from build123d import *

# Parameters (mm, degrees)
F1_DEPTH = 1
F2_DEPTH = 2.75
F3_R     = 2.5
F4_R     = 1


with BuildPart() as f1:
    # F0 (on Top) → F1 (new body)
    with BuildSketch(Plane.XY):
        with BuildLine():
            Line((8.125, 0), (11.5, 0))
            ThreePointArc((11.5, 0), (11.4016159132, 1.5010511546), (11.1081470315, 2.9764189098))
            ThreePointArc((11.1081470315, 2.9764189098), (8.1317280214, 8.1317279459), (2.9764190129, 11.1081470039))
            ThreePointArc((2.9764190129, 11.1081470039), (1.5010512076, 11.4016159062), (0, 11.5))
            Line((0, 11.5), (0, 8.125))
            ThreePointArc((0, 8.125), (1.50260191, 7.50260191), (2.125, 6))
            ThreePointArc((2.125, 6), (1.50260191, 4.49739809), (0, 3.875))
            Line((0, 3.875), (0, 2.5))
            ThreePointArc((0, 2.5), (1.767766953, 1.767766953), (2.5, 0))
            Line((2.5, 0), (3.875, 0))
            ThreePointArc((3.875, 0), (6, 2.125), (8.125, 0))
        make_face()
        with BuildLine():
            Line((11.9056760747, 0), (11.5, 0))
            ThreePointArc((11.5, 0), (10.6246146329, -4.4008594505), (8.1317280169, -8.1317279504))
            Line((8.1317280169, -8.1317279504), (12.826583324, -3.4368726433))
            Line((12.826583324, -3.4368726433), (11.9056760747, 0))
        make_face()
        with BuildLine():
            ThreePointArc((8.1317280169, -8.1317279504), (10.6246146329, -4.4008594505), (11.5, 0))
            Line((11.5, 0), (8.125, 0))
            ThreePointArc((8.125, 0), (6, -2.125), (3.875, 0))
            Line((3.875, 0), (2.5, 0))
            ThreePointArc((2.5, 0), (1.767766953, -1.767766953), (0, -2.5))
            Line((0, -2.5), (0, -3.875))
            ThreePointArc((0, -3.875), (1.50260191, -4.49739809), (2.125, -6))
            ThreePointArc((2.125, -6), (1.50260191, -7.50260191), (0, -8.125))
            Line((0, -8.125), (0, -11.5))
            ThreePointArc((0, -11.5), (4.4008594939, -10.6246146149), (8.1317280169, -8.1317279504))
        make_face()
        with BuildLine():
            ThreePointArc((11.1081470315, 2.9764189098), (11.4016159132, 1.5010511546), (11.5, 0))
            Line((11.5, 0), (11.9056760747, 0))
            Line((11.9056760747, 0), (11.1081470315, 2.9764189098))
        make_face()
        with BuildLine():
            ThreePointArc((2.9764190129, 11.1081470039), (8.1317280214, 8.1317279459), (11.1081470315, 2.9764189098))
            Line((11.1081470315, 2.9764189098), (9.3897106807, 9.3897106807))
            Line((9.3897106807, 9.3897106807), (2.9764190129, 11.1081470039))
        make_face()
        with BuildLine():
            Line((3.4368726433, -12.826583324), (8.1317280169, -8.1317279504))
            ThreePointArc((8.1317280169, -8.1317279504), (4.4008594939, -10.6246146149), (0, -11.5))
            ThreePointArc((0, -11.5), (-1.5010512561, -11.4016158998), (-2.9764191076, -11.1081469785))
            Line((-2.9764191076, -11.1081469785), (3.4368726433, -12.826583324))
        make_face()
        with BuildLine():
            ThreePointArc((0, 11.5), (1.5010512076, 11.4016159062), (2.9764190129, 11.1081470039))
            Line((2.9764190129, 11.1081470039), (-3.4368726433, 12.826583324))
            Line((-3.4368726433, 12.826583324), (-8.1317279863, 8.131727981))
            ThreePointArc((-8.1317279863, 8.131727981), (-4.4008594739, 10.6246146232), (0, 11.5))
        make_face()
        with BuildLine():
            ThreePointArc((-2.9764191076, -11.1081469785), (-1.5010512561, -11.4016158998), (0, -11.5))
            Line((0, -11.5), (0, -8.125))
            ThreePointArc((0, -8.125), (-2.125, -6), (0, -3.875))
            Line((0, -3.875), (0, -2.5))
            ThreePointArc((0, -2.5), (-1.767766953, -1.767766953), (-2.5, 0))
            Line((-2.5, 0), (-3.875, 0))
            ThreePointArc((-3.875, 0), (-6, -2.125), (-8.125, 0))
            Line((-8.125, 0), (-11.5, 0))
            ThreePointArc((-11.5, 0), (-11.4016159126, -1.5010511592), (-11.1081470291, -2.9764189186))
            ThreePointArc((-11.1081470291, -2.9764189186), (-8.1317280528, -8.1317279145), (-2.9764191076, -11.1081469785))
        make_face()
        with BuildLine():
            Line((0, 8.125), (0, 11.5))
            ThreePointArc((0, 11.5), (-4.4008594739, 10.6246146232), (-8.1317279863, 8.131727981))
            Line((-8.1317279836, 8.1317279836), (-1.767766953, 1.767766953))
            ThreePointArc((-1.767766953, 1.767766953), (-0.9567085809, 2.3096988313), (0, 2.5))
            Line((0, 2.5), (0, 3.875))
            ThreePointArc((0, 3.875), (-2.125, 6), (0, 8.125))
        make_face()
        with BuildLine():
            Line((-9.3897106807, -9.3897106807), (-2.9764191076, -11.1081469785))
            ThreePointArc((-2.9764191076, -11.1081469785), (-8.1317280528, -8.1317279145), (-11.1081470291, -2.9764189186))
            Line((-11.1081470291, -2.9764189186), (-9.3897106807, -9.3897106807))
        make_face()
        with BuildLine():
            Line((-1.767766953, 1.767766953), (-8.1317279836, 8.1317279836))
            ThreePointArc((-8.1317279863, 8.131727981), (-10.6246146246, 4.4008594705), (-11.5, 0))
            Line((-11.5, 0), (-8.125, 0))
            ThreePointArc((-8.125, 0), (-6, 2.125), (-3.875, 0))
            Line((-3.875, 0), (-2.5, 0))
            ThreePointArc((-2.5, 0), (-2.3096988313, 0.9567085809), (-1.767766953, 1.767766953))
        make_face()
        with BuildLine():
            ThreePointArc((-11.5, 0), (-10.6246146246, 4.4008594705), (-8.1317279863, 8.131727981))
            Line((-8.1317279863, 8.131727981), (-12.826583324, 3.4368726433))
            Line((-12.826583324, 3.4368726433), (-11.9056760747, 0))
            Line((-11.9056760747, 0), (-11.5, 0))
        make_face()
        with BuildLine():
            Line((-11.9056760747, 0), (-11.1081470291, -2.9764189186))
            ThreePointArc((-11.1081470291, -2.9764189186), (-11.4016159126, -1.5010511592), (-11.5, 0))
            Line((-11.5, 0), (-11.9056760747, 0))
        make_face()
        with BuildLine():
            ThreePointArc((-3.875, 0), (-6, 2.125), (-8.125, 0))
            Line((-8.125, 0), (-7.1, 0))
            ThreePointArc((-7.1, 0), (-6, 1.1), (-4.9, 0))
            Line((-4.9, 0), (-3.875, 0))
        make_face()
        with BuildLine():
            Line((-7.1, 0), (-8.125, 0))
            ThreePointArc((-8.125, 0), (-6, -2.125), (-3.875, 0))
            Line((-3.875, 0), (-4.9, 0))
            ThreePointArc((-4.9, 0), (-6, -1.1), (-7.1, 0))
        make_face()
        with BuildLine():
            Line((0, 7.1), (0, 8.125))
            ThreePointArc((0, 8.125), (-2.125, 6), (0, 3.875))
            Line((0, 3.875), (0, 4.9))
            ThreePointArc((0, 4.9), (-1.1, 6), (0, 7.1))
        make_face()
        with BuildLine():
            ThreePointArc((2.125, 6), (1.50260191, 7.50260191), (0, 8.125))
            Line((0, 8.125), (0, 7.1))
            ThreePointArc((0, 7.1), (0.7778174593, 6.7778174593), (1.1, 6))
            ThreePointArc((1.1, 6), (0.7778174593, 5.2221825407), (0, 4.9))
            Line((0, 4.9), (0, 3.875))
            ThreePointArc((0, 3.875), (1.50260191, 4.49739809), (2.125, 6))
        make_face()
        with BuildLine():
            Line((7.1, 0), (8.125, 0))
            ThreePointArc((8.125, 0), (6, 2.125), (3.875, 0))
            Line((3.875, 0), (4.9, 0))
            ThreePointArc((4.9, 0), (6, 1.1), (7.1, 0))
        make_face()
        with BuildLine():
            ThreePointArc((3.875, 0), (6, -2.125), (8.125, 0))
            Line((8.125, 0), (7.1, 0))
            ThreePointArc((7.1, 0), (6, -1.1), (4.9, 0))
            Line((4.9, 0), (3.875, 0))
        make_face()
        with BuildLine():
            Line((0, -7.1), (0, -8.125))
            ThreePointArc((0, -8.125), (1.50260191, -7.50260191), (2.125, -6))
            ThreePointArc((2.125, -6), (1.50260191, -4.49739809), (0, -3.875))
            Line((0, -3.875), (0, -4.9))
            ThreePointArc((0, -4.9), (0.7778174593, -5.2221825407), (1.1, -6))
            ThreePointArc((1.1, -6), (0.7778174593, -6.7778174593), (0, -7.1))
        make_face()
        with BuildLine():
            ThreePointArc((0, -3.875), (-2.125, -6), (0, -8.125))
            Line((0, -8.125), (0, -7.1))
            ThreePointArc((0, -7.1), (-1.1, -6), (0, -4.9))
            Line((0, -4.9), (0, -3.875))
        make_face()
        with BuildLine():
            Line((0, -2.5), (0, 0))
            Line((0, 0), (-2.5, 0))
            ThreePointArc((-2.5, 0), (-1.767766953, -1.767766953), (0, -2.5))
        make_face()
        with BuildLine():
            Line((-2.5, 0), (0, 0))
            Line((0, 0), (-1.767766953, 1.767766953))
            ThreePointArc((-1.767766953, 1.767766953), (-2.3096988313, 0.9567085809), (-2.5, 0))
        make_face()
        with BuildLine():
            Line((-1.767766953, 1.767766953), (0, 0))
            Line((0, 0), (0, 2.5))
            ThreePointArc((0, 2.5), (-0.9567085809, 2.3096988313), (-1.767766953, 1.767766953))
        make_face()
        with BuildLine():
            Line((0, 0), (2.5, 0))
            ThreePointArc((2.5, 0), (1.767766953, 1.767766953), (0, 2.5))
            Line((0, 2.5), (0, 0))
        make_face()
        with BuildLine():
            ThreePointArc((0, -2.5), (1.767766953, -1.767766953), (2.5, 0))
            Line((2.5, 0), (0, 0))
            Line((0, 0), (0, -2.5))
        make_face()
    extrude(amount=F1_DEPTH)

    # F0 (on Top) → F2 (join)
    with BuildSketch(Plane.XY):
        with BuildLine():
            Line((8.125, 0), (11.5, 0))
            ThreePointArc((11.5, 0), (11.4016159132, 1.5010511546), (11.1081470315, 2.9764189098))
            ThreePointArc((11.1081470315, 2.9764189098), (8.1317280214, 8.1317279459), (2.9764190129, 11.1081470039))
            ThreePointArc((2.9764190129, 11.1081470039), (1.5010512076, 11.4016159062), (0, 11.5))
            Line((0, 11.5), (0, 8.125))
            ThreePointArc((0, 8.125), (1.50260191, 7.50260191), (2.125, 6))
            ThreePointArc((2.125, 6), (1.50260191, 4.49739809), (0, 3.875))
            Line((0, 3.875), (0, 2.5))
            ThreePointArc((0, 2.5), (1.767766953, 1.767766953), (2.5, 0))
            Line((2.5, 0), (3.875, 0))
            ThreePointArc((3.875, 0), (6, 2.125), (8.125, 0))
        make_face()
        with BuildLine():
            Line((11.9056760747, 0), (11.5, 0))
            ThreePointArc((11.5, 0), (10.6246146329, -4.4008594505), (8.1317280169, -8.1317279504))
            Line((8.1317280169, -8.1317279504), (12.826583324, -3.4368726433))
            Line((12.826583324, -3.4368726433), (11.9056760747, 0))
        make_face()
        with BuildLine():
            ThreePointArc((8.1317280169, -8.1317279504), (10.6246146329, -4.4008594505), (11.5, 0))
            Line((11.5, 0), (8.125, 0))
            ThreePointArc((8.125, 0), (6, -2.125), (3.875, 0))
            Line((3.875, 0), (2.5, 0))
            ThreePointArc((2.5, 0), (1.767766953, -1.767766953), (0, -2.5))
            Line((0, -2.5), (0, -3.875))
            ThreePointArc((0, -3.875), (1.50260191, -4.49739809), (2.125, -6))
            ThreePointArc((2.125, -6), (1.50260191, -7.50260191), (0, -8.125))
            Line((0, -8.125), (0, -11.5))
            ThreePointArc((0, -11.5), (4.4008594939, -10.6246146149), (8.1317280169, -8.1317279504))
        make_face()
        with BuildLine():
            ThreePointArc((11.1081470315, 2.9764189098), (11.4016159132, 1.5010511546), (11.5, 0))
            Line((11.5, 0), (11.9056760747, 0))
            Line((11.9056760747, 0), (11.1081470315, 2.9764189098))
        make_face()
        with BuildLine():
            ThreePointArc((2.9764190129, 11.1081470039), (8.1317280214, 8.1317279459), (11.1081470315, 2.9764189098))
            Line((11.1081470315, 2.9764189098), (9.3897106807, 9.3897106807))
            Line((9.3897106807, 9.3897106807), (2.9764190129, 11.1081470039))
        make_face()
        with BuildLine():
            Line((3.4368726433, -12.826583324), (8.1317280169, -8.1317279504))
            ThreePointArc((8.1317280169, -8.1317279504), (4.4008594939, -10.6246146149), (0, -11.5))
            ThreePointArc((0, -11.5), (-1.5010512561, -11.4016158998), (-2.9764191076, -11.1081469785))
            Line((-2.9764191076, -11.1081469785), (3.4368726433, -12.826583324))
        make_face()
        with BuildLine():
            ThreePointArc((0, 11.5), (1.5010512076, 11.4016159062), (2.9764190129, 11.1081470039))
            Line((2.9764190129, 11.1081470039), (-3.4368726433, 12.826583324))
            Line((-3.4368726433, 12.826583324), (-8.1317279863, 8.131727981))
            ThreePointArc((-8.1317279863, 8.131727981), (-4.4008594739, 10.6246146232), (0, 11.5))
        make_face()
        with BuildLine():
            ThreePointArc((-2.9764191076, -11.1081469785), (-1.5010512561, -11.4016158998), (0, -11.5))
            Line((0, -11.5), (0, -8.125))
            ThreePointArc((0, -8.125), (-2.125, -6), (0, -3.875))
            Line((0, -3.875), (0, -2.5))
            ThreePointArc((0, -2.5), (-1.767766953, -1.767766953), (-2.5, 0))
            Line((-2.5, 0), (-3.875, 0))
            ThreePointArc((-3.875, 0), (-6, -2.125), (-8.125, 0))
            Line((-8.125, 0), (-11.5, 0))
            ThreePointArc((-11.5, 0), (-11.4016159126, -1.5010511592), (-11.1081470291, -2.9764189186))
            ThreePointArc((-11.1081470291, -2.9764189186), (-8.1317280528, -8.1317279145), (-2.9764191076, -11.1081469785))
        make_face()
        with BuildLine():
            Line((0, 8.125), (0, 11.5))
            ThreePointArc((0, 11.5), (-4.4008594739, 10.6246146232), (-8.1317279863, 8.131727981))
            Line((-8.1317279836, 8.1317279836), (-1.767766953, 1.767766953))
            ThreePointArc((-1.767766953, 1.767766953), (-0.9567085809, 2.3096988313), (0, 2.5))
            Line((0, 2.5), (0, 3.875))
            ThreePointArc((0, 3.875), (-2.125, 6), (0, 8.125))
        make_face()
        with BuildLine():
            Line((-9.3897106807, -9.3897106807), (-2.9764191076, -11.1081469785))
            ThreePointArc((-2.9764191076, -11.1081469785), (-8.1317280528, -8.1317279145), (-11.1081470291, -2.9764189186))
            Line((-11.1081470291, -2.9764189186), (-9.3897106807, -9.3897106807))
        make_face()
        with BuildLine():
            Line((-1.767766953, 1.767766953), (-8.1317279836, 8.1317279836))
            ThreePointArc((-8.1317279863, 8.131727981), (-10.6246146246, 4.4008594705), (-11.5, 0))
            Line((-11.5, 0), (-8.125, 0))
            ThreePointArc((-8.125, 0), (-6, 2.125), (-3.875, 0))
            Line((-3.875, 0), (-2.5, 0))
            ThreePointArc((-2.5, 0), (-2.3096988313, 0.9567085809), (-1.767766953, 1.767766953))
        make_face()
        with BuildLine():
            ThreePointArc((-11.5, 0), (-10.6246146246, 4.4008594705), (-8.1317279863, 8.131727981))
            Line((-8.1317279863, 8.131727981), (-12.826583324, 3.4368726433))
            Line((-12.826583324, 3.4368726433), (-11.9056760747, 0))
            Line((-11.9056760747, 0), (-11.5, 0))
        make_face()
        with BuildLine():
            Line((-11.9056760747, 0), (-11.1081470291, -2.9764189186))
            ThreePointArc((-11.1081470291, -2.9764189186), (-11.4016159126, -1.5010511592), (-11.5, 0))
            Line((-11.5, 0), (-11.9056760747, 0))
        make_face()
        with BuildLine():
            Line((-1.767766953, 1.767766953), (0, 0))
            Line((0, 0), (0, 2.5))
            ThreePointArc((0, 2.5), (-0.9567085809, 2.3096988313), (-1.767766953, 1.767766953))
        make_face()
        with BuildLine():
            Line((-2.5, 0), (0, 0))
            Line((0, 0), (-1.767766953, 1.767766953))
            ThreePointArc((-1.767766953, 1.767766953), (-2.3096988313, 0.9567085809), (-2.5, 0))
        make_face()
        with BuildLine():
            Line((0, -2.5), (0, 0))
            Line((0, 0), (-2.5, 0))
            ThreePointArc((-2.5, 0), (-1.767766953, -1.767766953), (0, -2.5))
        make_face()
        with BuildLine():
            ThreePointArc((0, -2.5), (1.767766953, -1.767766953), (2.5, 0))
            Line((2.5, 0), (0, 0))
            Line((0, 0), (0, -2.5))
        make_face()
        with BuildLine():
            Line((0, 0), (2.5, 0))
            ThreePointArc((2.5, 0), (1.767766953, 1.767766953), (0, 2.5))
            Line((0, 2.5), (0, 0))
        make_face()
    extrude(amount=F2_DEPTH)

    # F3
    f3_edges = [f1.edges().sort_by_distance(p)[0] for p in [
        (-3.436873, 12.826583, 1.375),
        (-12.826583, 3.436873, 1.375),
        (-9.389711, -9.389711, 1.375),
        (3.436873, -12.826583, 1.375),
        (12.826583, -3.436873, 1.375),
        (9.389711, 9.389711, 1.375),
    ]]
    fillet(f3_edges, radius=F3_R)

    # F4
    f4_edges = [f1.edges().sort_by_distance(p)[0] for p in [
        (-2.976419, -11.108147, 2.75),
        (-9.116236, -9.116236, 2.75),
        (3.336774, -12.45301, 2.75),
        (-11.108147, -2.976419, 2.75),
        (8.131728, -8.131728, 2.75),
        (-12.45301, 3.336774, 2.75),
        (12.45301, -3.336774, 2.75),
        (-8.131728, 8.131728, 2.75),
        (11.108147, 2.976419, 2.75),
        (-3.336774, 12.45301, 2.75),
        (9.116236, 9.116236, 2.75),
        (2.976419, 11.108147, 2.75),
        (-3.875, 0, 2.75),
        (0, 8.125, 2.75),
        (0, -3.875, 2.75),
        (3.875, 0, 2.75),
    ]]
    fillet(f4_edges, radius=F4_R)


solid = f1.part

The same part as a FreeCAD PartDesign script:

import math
import FreeCAD as App
import Part
import Sketcher
from FreeCAD import Vector
Q = App.Units.Quantity


def edges_at(feature, points):
    """Names of the edges that pass closest to the given points."""
    edges = feature.Shape.Edges
    near = lambda p: min(range(len(edges)), key=lambda i: edges[i].distToShape(Part.Vertex(*p))[0])
    return sorted({f"Edge{near(p) + 1}" for p in points})

doc = App.newDocument("Part")
body = doc.addObject("PartDesign::Body", "Body")

# Sketch on XY plane
sketch1 = doc.addObject("Sketcher::SketchObject", "Sketch")
body.addObject(sketch1)
sketch1.AttachmentSupport = (doc.XY_Plane, [""])
sketch1.MapMode = "FlatFace"
sketch1.addGeometry(Part.LineSegment(Vector(-11.1, -3, 0), Vector(-9.4, -9.4, 0)), False)
sketch1.addGeometry(Part.LineSegment(Vector(-9.4, -9.4, 0), Vector(-3, -11.1, 0)), False)
sketch1.addGeometry(Part.LineSegment(Vector(-3, -11.1, 0), Vector(3.4, -12.8, 0)), False)
sketch1.addGeometry(Part.LineSegment(Vector(3.4, -12.8, 0), Vector(12.8, -3.4, 0)), False)
sketch1.addGeometry(Part.LineSegment(Vector(12.8, -3.4, 0), Vector(11.9, 0, 0)), False)
sketch1.addGeometry(Part.LineSegment(Vector(11.9, 0, 0), Vector(9.4, 9.4, 0)), False)
sketch1.addGeometry(Part.LineSegment(Vector(9.4, 9.4, 0), Vector(3, 11.1, 0)), False)
sketch1.addGeometry(Part.LineSegment(Vector(3, 11.1, 0), Vector(-3.4, 12.8, 0)), False)
sketch1.addGeometry(Part.LineSegment(Vector(-3.4, 12.8, 0), Vector(-12.8, 3.4, 0)), False)
sketch1.addGeometry(Part.LineSegment(Vector(-12.8, 3.4, 0), Vector(-11.9, 0, 0)), False)
sketch1.addGeometry(Part.LineSegment(Vector(-11.9, 0, 0), Vector(-11.1, -3, 0)), False)
sketch1.addGeometry(Part.ArcOfCircle(Part.Circle(Vector(0, 6, 0), Vector(0, 0, 1), 1.1), math.radians(90), math.radians(270)), False)
sketch1.addGeometry(Part.ArcOfCircle(Part.Circle(Vector(0, 6, 0), Vector(0, 0, 1), 1.1), math.radians(0), math.radians(90)), False)
sketch1.addGeometry(Part.ArcOfCircle(Part.Circle(Vector(0, 6, 0), Vector(0, 0, 1), 1.1), math.radians(-90), math.radians(0)), False)
sketch1.addGeometry(Part.Circle(Vector(-6, 0, 0), Vector(0, 0, 1), 1.1), False)
sketch1.addGeometry(Part.ArcOfCircle(Part.Circle(Vector(0, -6, 0), Vector(0, 0, 1), 1.1), math.radians(0), math.radians(90)), False)
sketch1.addGeometry(Part.ArcOfCircle(Part.Circle(Vector(0, -6, 0), Vector(0, 0, 1), 1.1), math.radians(-90), math.radians(0)), False)
sketch1.addGeometry(Part.ArcOfCircle(Part.Circle(Vector(0, -6, 0), Vector(0, 0, 1), 1.1), math.radians(90), math.radians(270)), False)
sketch1.addGeometry(Part.Circle(Vector(6, 0, 0), Vector(0, 0, 1), 1.1), False)
sketch1.addConstraint(Sketcher.Constraint("Coincident", 0, 2, 1, 1))
sketch1.addConstraint(Sketcher.Constraint("Coincident", 1, 2, 2, 1))
sketch1.addConstraint(Sketcher.Constraint("Coincident", 2, 2, 3, 1))
sketch1.addConstraint(Sketcher.Constraint("Coincident", 3, 2, 4, 1))
sketch1.addConstraint(Sketcher.Constraint("Coincident", 4, 2, 5, 1))
sketch1.addConstraint(Sketcher.Constraint("Coincident", 5, 2, 6, 1))
sketch1.addConstraint(Sketcher.Constraint("Coincident", 6, 2, 7, 1))
sketch1.addConstraint(Sketcher.Constraint("Coincident", 7, 2, 8, 1))
sketch1.addConstraint(Sketcher.Constraint("Coincident", 8, 2, 9, 1))
sketch1.addConstraint(Sketcher.Constraint("Coincident", 9, 2, 10, 1))
sketch1.addConstraint(Sketcher.Constraint("Coincident", 10, 2, 0, 1))
sketch1.addConstraint(Sketcher.Constraint("Tangent", 11, 1, 12, 2))
sketch1.addConstraint(Sketcher.Constraint("Tangent", 12, 1, 13, 2))
sketch1.addConstraint(Sketcher.Constraint("Tangent", 13, 1, 11, 2))
sketch1.addConstraint(Sketcher.Constraint("Tangent", 15, 1, 16, 2))
sketch1.addConstraint(Sketcher.Constraint("Tangent", 16, 1, 17, 2))
sketch1.addConstraint(Sketcher.Constraint("Tangent", 17, 1, 15, 2))
sketch1.addConstraint(Sketcher.Constraint("Equal", 13, 14))
sketch1.addConstraint(Sketcher.Constraint("Equal", 14, 15))
sketch1.addConstraint(Sketcher.Constraint("Equal", 17, 18))
sketch1.addConstraint(Sketcher.Constraint("Symmetric", 11, 3, 15, 3, -1, 1))
sketch1.addConstraint(Sketcher.Constraint("Symmetric", 14, 3, 18, 3, -1, 1))
sketch1.addConstraint(Sketcher.Constraint("Symmetric", 0, 2, 5, 2, -1, 1))
sketch1.addConstraint(Sketcher.Constraint("Symmetric", 1, 2, 6, 2, -1, 1))
sketch1.addConstraint(Sketcher.Constraint("Symmetric", 2, 2, 7, 2, -1, 1))
sketch1.addConstraint(Sketcher.Constraint("Symmetric", 3, 2, 8, 2, -1, 1))
sketch1.addConstraint(Sketcher.Constraint("Symmetric", 4, 2, 9, 2, -1, 1))
sketch1.addConstraint(Sketcher.Constraint("Symmetric", 12, 1, 15, 1, -1))
sketch1.addConstraint(Sketcher.Constraint("PointOnObject", 14, 3, -1))
sketch1.addConstraint(Sketcher.Constraint("PointOnObject", 4, 2, -1))
sketch1.addConstraint(Sketcher.Constraint("PointOnObject", 11, 1, -2))
sketch1.addConstraint(Sketcher.Constraint("PointOnObject", 13, 1, -2))
sketch1.addConstraint(Sketcher.Constraint("PointOnObject", 16, 1, -2))
sketch1.addConstraint(Sketcher.Constraint("PointOnObject", 17, 1, -2))
sketch1.addConstraint(Sketcher.Constraint("Parallel", 1, 2))
sketch1.addConstraint(Sketcher.Constraint("Parallel", 0, 4))
sketch1.addConstraint(Sketcher.Constraint("Parallel", 4, 5))
sketch1.addConstraint(Sketcher.Constraint("Horizontal", 13, 3, 12, 1))
sketch1.addConstraint(Sketcher.Constraint("Equal", 0, 1))
sketch1.addConstraint(Sketcher.Constraint("Equal", 1, 2))
sketch1.addConstraint(Sketcher.Constraint("Diameter", 14, Q("2.2 mm")))
sketch1.addConstraint(Sketcher.Constraint("Angle", 0, Q("-75 deg")))
sketch1.addConstraint(Sketcher.Constraint("Angle", 1, Q("-15 deg")))
sketch1.addConstraint(Sketcher.Constraint("Angle", 3, Q("45 deg")))
sketch1.addConstraint(Sketcher.Constraint("DistanceY", -1, 1, 11, 3, Q("6 mm")))
sketch1.addConstraint(Sketcher.Constraint("DistanceX", 14, 3, -1, 1, Q("6 mm")))
sketch1.addConstraint(Sketcher.Constraint("Distance", 0, Q("6.639528 mm")))
sketch1.addConstraint(Sketcher.Constraint("DistanceX", 0, 2, -1, 1, Q("9.389711 mm")))
sketch1.addConstraint(Sketcher.Constraint("DistanceY", 0, 2, -1, 1, Q("9.389711 mm")))
pad1 = doc.addObject("PartDesign::Pad", "Pad")
body.addObject(pad1)
pad1.Profile = sketch1
pad1.Length = 1

# Sketch on XY plane
sketch2 = doc.addObject("Sketcher::SketchObject", "Sketch001")
body.addObject(sketch2)
sketch2.AttachmentSupport = (doc.XY_Plane, [""])
sketch2.MapMode = "FlatFace"
sketch2.addGeometry(Part.LineSegment(Vector(-11.1, -3, 0), Vector(-9.4, -9.4, 0)), False)
sketch2.addGeometry(Part.LineSegment(Vector(-9.4, -9.4, 0), Vector(-3, -11.1, 0)), False)
sketch2.addGeometry(Part.LineSegment(Vector(-3, -11.1, 0), Vector(3.4, -12.8, 0)), False)
sketch2.addGeometry(Part.LineSegment(Vector(3.4, -12.8, 0), Vector(12.8, -3.4, 0)), False)
sketch2.addGeometry(Part.LineSegment(Vector(12.8, -3.4, 0), Vector(11.9, 0, 0)), False)
sketch2.addGeometry(Part.LineSegment(Vector(11.9, 0, 0), Vector(9.4, 9.4, 0)), False)
sketch2.addGeometry(Part.LineSegment(Vector(9.4, 9.4, 0), Vector(3, 11.1, 0)), False)
sketch2.addGeometry(Part.LineSegment(Vector(3, 11.1, 0), Vector(-3.4, 12.8, 0)), False)
sketch2.addGeometry(Part.LineSegment(Vector(-3.4, 12.8, 0), Vector(-12.8, 3.4, 0)), False)
sketch2.addGeometry(Part.LineSegment(Vector(-12.8, 3.4, 0), Vector(-11.9, 0, 0)), False)
sketch2.addGeometry(Part.LineSegment(Vector(-11.9, 0, 0), Vector(-11.1, -3, 0)), False)
sketch2.addGeometry(Part.ArcOfCircle(Part.Circle(Vector(0, 6, 0), Vector(0, 0, 1), 2.1), math.radians(0), math.radians(90)), False)
sketch2.addGeometry(Part.ArcOfCircle(Part.Circle(Vector(0, 6, 0), Vector(0, 0, 1), 2.1), math.radians(-90), math.radians(0)), False)
sketch2.addGeometry(Part.ArcOfCircle(Part.Circle(Vector(0, 6, 0), Vector(0, 0, 1), 2.1), math.radians(90), math.radians(270)), False)
sketch2.addGeometry(Part.Circle(Vector(-6, 0, 0), Vector(0, 0, 1), 2.1), False)
sketch2.addGeometry(Part.ArcOfCircle(Part.Circle(Vector(0, -6, 0), Vector(0, 0, 1), 2.1), math.radians(0), math.radians(90)), False)
sketch2.addGeometry(Part.ArcOfCircle(Part.Circle(Vector(0, -6, 0), Vector(0, 0, 1), 2.1), math.radians(-90), math.radians(0)), False)
sketch2.addGeometry(Part.ArcOfCircle(Part.Circle(Vector(0, -6, 0), Vector(0, 0, 1), 2.1), math.radians(90), math.radians(270)), False)
sketch2.addGeometry(Part.Circle(Vector(6, 0, 0), Vector(0, 0, 1), 2.1), False)
sketch2.addConstraint(Sketcher.Constraint("Coincident", 0, 2, 1, 1))
sketch2.addConstraint(Sketcher.Constraint("Coincident", 1, 2, 2, 1))
sketch2.addConstraint(Sketcher.Constraint("Coincident", 2, 2, 3, 1))
sketch2.addConstraint(Sketcher.Constraint("Coincident", 3, 2, 4, 1))
sketch2.addConstraint(Sketcher.Constraint("Coincident", 4, 2, 5, 1))
sketch2.addConstraint(Sketcher.Constraint("Coincident", 5, 2, 6, 1))
sketch2.addConstraint(Sketcher.Constraint("Coincident", 6, 2, 7, 1))
sketch2.addConstraint(Sketcher.Constraint("Coincident", 7, 2, 8, 1))
sketch2.addConstraint(Sketcher.Constraint("Coincident", 8, 2, 9, 1))
sketch2.addConstraint(Sketcher.Constraint("Coincident", 9, 2, 10, 1))
sketch2.addConstraint(Sketcher.Constraint("Coincident", 10, 2, 0, 1))
sketch2.addConstraint(Sketcher.Constraint("Tangent", 11, 1, 12, 2))
sketch2.addConstraint(Sketcher.Constraint("Tangent", 12, 1, 13, 2))
sketch2.addConstraint(Sketcher.Constraint("Tangent", 13, 1, 11, 2))
sketch2.addConstraint(Sketcher.Constraint("Tangent", 15, 1, 16, 2))
sketch2.addConstraint(Sketcher.Constraint("Tangent", 16, 1, 17, 2))
sketch2.addConstraint(Sketcher.Constraint("Tangent", 17, 1, 15, 2))
sketch2.addConstraint(Sketcher.Constraint("Equal", 13, 14))
sketch2.addConstraint(Sketcher.Constraint("Equal", 14, 15))
sketch2.addConstraint(Sketcher.Constraint("Equal", 17, 18))
sketch2.addConstraint(Sketcher.Constraint("Symmetric", 11, 3, 15, 3, -1, 1))
sketch2.addConstraint(Sketcher.Constraint("Symmetric", 14, 3, 18, 3, -1, 1))
sketch2.addConstraint(Sketcher.Constraint("Symmetric", 0, 2, 5, 2, -1, 1))
sketch2.addConstraint(Sketcher.Constraint("Symmetric", 1, 2, 6, 2, -1, 1))
sketch2.addConstraint(Sketcher.Constraint("Symmetric", 2, 2, 7, 2, -1, 1))
sketch2.addConstraint(Sketcher.Constraint("Symmetric", 3, 2, 8, 2, -1, 1))
sketch2.addConstraint(Sketcher.Constraint("Symmetric", 4, 2, 9, 2, -1, 1))
sketch2.addConstraint(Sketcher.Constraint("Symmetric", 11, 1, 15, 1, -1))
sketch2.addConstraint(Sketcher.Constraint("PointOnObject", 14, 3, -1))
sketch2.addConstraint(Sketcher.Constraint("PointOnObject", 4, 2, -1))
sketch2.addConstraint(Sketcher.Constraint("PointOnObject", 12, 1, -2))
sketch2.addConstraint(Sketcher.Constraint("PointOnObject", 13, 1, -2))
sketch2.addConstraint(Sketcher.Constraint("PointOnObject", 16, 1, -2))
sketch2.addConstraint(Sketcher.Constraint("PointOnObject", 17, 1, -2))
sketch2.addConstraint(Sketcher.Constraint("Parallel", 1, 2))
sketch2.addConstraint(Sketcher.Constraint("Parallel", 0, 4))
sketch2.addConstraint(Sketcher.Constraint("Parallel", 4, 5))
sketch2.addConstraint(Sketcher.Constraint("Horizontal", 13, 3, 11, 1))
sketch2.addConstraint(Sketcher.Constraint("Equal", 0, 1))
sketch2.addConstraint(Sketcher.Constraint("Equal", 1, 2))
sketch2.addConstraint(Sketcher.Constraint("Diameter", 14, Q("4.25 mm")))
sketch2.addConstraint(Sketcher.Constraint("Angle", 0, Q("-75 deg")))
sketch2.addConstraint(Sketcher.Constraint("Angle", 1, Q("-15 deg")))
sketch2.addConstraint(Sketcher.Constraint("Angle", 3, Q("45 deg")))
sketch2.addConstraint(Sketcher.Constraint("DistanceY", -1, 1, 11, 3, Q("6 mm")))
sketch2.addConstraint(Sketcher.Constraint("DistanceX", 14, 3, -1, 1, Q("6 mm")))
sketch2.addConstraint(Sketcher.Constraint("Distance", 0, Q("6.639528 mm")))
sketch2.addConstraint(Sketcher.Constraint("DistanceX", 0, 2, -1, 1, Q("9.389711 mm")))
sketch2.addConstraint(Sketcher.Constraint("DistanceY", 0, 2, -1, 1, Q("9.389711 mm")))
pad2 = doc.addObject("PartDesign::Pad", "Pad001")
body.addObject(pad2)
pad2.Profile = sketch2
pad2.Length = 2.75
doc.recompute()

fillet = doc.addObject("PartDesign::Fillet", "Fillet")
body.addObject(fillet)
fillet.Base = (pad2, edges_at(pad2, [
    (-3.437, 12.827, 1.375),
    (-12.827, 3.437, 1.375),
    (-9.39, -9.39, 1.375),
    (3.437, -12.827, 1.375),
    (12.827, -3.437, 1.375),
    (9.39, 9.39, 1.375),
]))
fillet.Radius = 2.5
doc.recompute()

fillet2 = doc.addObject("PartDesign::Fillet", "Fillet001")
body.addObject(fillet2)
fillet2.Base = (fillet, edges_at(fillet, [
    (-0.467, -11.781, 2.75),
    (-9.116, -9.116, 2.75),
    (3.337, -12.453, 2.75),
    (-10.436, -5.486, 2.75),
    (8.132, -8.132, 2.75),
    (-12.453, 3.337, 2.75),
    (12.453, -3.337, 2.75),
    (-8.132, 8.132, 2.75),
    (10.834, 3.998, 2.75),
    (-3.337, 12.453, 2.75),
    (9.116, 9.116, 2.75),
    (5.486, 10.436, 2.75),
    (-3.875, 0, 2.75),
    (1.503, 7.503, 2.75),
    (1.503, -4.497, 2.75),
    (3.875, 0, 2.75),
]))
fillet2.Radius = 1

doc.recompute()
